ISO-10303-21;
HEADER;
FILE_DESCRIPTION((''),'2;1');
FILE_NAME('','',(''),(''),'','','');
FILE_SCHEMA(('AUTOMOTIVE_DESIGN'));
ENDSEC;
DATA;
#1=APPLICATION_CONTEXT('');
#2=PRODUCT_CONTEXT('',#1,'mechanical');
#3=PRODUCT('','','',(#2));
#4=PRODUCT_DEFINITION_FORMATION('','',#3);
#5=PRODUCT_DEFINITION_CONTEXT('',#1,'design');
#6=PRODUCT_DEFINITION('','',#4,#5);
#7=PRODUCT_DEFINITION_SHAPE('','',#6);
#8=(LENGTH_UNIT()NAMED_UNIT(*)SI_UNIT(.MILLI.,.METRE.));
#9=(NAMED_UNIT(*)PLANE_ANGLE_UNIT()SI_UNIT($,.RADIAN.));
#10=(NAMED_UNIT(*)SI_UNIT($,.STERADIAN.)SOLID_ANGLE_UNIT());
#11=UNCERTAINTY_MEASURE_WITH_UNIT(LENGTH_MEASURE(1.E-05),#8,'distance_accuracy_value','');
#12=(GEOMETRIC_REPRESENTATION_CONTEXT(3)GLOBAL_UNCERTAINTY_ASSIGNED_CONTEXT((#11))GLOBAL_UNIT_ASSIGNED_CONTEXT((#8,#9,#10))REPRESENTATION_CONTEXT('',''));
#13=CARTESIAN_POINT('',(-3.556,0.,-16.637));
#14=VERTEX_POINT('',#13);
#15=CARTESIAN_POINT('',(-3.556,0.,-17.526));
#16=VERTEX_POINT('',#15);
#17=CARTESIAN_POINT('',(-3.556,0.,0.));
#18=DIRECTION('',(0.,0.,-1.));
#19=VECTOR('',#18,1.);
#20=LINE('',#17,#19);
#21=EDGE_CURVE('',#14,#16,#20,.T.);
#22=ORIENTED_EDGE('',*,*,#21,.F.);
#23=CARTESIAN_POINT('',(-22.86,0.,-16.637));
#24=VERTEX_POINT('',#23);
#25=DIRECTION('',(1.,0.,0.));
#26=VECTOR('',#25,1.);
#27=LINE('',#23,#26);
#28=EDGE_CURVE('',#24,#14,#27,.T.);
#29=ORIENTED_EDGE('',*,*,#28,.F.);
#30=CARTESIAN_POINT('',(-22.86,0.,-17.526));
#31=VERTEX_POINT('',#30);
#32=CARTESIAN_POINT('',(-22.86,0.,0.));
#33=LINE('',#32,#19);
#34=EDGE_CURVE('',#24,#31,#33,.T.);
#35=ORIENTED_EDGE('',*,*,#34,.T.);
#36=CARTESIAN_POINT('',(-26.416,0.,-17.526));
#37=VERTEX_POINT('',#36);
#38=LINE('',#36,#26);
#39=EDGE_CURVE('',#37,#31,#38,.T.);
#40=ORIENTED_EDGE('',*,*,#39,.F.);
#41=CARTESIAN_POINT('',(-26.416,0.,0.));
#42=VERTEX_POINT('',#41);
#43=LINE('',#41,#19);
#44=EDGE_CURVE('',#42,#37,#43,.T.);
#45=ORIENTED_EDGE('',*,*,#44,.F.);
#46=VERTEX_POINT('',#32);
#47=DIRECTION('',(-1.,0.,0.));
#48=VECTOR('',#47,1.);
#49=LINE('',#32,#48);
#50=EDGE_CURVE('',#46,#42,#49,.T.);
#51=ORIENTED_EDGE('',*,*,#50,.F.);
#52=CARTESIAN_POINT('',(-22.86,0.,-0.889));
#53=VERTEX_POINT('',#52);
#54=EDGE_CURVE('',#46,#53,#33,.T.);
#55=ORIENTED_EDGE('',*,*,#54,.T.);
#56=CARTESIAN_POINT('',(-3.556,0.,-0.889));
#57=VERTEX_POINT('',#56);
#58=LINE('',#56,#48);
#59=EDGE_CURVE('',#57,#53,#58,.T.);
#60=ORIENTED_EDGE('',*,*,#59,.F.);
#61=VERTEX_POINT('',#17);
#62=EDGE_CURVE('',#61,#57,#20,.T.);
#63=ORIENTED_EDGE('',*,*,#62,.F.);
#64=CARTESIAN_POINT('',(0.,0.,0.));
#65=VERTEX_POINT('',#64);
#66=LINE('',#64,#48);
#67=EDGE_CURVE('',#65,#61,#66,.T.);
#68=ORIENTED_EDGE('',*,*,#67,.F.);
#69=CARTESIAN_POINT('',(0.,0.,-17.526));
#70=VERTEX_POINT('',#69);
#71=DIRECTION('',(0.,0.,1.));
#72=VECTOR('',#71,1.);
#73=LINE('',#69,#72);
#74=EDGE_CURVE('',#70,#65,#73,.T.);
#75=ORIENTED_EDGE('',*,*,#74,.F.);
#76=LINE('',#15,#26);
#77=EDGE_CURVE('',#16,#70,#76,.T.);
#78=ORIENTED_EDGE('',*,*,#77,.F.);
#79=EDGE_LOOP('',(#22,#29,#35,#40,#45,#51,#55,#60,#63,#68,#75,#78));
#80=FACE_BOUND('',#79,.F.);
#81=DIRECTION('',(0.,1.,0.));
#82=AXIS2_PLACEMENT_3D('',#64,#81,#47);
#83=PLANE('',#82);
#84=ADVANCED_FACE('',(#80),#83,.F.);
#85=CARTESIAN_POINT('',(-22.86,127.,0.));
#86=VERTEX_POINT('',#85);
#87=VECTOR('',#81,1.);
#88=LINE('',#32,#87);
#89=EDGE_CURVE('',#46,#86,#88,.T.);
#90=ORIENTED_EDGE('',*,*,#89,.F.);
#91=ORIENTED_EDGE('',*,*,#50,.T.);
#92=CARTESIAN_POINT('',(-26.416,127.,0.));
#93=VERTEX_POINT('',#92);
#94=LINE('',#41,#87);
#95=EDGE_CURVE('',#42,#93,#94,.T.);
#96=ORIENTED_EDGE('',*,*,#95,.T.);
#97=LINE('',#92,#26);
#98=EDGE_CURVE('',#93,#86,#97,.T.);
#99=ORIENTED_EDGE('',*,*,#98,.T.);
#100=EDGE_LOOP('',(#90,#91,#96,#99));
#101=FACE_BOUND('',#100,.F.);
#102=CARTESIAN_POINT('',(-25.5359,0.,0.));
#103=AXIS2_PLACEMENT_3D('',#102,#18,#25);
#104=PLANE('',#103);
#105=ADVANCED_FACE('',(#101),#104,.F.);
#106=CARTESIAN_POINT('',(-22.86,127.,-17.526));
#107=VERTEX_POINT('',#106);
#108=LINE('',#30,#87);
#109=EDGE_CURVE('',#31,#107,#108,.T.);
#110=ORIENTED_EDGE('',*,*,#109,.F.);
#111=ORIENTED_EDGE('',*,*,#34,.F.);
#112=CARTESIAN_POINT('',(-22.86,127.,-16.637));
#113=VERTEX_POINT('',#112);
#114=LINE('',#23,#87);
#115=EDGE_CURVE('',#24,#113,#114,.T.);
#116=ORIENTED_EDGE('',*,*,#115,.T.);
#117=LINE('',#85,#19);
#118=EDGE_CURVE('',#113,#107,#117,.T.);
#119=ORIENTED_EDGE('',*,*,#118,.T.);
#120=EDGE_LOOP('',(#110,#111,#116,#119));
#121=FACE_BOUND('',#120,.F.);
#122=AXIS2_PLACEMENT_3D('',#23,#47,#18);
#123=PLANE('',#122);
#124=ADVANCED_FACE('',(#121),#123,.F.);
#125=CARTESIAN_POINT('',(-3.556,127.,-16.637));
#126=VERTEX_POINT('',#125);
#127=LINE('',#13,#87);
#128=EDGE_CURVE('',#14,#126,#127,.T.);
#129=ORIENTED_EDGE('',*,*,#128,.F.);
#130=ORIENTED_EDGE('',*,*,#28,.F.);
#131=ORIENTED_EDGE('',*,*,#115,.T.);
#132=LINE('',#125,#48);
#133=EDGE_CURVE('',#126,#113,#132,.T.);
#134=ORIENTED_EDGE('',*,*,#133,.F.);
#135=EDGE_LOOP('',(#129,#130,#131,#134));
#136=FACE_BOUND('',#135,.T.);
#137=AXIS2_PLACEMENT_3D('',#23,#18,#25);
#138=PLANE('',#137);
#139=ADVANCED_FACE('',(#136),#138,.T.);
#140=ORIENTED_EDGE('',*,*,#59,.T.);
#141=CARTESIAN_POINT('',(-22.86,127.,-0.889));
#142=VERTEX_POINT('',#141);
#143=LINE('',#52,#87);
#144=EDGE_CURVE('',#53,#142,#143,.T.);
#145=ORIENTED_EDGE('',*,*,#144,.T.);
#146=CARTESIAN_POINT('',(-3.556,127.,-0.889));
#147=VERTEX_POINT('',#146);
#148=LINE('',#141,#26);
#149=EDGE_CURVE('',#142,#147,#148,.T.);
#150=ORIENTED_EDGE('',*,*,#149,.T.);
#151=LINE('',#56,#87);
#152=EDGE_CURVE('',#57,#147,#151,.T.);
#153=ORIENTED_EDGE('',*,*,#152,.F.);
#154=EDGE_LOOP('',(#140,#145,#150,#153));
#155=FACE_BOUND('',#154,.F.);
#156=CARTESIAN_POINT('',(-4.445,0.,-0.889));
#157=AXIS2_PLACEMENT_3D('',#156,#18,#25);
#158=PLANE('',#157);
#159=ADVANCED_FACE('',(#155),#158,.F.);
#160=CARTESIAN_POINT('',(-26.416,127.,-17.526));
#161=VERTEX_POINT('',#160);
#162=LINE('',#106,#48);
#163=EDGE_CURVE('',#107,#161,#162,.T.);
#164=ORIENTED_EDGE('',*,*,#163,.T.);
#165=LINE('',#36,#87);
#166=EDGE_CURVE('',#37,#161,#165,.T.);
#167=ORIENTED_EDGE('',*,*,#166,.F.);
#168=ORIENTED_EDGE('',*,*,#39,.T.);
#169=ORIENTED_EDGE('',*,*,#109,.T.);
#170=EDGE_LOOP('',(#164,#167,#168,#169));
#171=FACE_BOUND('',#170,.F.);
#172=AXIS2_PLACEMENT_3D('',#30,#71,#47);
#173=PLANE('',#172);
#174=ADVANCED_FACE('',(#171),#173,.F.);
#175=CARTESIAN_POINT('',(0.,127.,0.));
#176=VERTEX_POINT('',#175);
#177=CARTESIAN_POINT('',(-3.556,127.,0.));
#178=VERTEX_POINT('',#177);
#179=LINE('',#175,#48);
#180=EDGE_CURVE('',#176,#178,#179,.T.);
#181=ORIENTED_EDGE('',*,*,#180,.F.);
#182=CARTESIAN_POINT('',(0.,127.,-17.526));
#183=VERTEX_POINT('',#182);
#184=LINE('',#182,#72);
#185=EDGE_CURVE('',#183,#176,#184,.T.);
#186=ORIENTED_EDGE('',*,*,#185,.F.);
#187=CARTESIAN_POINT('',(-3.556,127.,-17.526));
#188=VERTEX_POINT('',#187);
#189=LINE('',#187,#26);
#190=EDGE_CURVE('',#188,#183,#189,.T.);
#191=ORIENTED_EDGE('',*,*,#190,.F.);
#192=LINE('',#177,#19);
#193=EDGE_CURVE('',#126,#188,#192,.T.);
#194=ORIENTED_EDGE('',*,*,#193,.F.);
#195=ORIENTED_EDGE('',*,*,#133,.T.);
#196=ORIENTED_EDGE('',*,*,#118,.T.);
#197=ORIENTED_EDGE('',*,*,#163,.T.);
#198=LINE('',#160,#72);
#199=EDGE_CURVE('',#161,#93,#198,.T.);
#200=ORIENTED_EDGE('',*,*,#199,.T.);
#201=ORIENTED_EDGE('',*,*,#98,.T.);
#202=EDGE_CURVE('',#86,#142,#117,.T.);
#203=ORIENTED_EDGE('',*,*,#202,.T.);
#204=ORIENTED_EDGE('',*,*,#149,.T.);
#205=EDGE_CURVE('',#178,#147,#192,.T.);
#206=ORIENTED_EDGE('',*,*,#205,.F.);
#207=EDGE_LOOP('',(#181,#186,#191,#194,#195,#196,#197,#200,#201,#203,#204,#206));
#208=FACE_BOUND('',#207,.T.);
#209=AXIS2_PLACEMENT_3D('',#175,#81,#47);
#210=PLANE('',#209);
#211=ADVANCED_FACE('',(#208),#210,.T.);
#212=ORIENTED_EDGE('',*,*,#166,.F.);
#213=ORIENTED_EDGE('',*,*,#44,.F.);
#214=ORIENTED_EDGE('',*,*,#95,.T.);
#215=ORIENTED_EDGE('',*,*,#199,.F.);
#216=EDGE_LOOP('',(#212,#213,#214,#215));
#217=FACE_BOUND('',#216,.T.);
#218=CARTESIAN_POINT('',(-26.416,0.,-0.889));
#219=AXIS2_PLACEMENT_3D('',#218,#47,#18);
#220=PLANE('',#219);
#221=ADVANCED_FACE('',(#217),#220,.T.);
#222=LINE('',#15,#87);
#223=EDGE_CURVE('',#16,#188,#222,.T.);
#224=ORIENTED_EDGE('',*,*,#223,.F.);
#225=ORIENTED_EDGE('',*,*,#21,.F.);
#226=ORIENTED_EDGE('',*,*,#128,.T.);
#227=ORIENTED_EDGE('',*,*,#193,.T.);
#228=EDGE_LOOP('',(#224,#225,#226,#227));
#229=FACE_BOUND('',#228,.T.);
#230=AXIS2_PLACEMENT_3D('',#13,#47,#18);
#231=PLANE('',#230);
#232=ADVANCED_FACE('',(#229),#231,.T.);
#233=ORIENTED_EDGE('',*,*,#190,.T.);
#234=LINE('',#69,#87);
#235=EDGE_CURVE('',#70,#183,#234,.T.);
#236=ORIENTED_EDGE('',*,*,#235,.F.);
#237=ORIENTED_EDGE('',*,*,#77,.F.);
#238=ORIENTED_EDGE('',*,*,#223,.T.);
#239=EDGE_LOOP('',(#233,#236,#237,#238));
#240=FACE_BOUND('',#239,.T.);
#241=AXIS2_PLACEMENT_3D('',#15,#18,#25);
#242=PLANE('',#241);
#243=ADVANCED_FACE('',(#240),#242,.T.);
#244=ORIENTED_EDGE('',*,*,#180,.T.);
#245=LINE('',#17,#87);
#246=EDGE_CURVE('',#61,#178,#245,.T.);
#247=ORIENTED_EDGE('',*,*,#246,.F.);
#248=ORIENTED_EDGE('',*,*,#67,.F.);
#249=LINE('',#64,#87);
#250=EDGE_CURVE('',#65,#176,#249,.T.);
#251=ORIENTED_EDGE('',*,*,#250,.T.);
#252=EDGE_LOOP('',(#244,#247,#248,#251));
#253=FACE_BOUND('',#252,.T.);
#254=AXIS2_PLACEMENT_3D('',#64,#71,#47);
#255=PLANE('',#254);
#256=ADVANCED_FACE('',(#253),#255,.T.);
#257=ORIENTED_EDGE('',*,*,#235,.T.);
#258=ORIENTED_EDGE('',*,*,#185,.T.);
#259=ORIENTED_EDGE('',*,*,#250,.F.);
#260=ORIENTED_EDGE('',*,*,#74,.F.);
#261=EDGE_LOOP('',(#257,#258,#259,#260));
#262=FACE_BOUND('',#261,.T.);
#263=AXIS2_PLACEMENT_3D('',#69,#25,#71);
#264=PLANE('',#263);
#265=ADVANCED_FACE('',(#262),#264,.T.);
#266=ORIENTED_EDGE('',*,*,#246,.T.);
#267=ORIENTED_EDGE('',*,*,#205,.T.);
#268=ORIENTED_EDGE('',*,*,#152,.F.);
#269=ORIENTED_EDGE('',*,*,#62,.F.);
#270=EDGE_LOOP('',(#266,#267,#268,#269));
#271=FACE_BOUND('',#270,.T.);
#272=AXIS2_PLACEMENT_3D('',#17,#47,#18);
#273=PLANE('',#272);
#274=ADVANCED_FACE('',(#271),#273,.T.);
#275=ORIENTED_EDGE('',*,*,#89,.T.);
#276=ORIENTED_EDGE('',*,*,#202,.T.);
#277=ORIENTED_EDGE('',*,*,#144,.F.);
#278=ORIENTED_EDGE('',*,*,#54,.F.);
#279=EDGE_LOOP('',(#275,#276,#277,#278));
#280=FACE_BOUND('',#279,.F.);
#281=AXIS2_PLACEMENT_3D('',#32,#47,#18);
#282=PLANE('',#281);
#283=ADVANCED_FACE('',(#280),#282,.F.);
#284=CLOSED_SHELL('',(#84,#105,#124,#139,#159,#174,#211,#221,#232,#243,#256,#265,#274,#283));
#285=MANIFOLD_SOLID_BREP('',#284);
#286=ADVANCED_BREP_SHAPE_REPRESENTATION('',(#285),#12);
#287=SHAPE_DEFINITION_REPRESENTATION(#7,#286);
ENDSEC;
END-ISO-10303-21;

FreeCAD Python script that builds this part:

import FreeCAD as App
import Part
import Sketcher
Q = App.Units.Quantity

doc = App.newDocument("Part")
body = doc.addObject("PartDesign::Body", "Body")

# Sketch on XZ plane
sketch1 = body.newObject("Sketcher::SketchObject", "Sketch")
sketch1.AttachmentSupport = (doc.getObject("XZ_Plane"), [""])
sketch1.MapMode = "FlatFace"
sketch1.addGeometry([
    Part.LineSegment(App.Vector(-3.556, 0, 0), App.Vector(0, 0, 0)),  # 0
    Part.LineSegment(App.Vector(0, 0, 0), App.Vector(0, -17.526, 0)),  # 1
    Part.LineSegment(App.Vector(0, -17.526, 0), App.Vector(-3.556, -17.526, 0)),  # 2
    Part.LineSegment(App.Vector(-3.556, -17.526, 0), App.Vector(-3.556, -16.637, 0)),  # 3
    Part.LineSegment(App.Vector(-3.556, -16.637, 0), App.Vector(-22.86, -16.637, 0)),  # 4
    Part.LineSegment(App.Vector(-22.86, -16.637, 0), App.Vector(-22.86, -17.526, 0)),  # 5
    Part.LineSegment(App.Vector(-22.86, -17.526, 0), App.Vector(-26.416, -17.526, 0)),  # 6
    Part.LineSegment(App.Vector(-26.416, -17.526, 0), App.Vector(-26.416, 0, 0)),  # 7
    Part.LineSegment(App.Vector(-26.416, 0, 0), App.Vector(-22.86, 0, 0)),  # 8
    Part.LineSegment(App.Vector(-22.86, 0, 0), App.Vector(-22.86, -0.889, 0)),  # 9
    Part.LineSegment(App.Vector(-22.86, -0.889, 0), App.Vector(-3.556, -0.889, 0)),  # 10
    Part.LineSegment(App.Vector(-3.556, -0.889, 0), App.Vector(-3.556, 0, 0)),  # 11
], False)
sketch1.addConstraint([
    Sketcher.Constraint("Coincident", 0, 2, 1, 1),
    Sketcher.Constraint("Coincident", 1, 2, 2, 1),
    Sketcher.Constraint("Coincident", 2, 2, 3, 1),
    Sketcher.Constraint("Coincident", 3, 2, 4, 1),
    Sketcher.Constraint("Coincident", 4, 2, 5, 1),
    Sketcher.Constraint("Coincident", 5, 2, 6, 1),
    Sketcher.Constraint("Coincident", 6, 2, 7, 1),
    Sketcher.Constraint("Coincident", 7, 2, 8, 1),
    Sketcher.Constraint("Coincident", 8, 2, 9, 1),
    Sketcher.Constraint("Coincident", 9, 2, 10, 1),
    Sketcher.Constraint("Coincident", 10, 2, 11, 1),
    Sketcher.Constraint("Coincident", 11, 2, 0, 1),
    Sketcher.Constraint("Horizontal", 0),
    Sketcher.Constraint("Vertical", 1),
    Sketcher.Constraint("Horizontal", 2),
    Sketcher.Constraint("Vertical", 3),
    Sketcher.Constraint("Horizontal", 4),
    Sketcher.Constraint("Vertical", 5),
    Sketcher.Constraint("Horizontal", 6),
    Sketcher.Constraint("Vertical", 7),
    Sketcher.Constraint("Horizontal", 8),
    Sketcher.Constraint("Vertical", 9),
    Sketcher.Constraint("Horizontal", 10),
    Sketcher.Constraint("Vertical", 11),
    Sketcher.Constraint("Coincident", 0, 2, -1, 1),
    Sketcher.Constraint("PointOnObject", 7, 2, -1),
    Sketcher.Constraint("Horizontal", 2, 2, 5, 2),
    Sketcher.Constraint("Vertical", 5, 2, 8, 2),
    Sketcher.Constraint("Vertical", 3, 2, 10, 2),
    Sketcher.Constraint("Equal", 2, 6),
    Sketcher.Constraint("Equal", 5, 9),
    Sketcher.Constraint("DistanceX", 0, 1, 0, 2, Q("0.14 in")),
    Sketcher.Constraint("DistanceY", 1, 2, 1, 1, Q("0.69 in")),
    Sketcher.Constraint("DistanceX", 4, 2, -1, 1, Q("0.9 in")),
    Sketcher.Constraint("DistanceY", 3, 1, 3, 2, Q("0.035 in")),
])
pad1 = body.newObject("PartDesign::Pad", "Pad")
pad1.Profile = sketch1
pad1.Length = Q("5 in")
pad1.Reversed = True

doc.recompute()
